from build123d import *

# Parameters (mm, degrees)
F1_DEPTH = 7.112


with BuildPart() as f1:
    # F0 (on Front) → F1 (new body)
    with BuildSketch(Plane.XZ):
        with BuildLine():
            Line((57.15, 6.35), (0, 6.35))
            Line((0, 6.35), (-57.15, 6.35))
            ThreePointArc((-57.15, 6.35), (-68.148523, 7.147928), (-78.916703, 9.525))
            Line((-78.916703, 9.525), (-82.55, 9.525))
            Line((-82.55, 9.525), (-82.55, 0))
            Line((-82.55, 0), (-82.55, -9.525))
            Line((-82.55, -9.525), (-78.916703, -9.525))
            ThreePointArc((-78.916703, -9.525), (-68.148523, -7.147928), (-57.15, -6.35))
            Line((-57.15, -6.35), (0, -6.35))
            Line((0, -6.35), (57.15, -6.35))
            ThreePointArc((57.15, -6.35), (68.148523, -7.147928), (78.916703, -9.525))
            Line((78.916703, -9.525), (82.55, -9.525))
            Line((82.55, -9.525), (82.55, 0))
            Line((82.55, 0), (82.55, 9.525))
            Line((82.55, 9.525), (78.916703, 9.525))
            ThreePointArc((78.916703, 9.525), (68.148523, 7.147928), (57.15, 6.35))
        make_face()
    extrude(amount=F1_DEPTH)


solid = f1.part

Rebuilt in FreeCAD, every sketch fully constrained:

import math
import FreeCAD as App
import Part
import Sketcher
Q = App.Units.Quantity

doc = App.newDocument("Part")
body = doc.addObject("PartDesign::Body", "Body")

sketch1 = body.newObject("Sketcher::SketchObject", "Sketch")
sketch1.AttachmentSupport = (doc.getObject("XZ_Plane"), [""])
sketch1.MapMode = "FlatFace"
sketch1.addGeometry([
    Part.LineSegment(App.Vector(57.15, 6.35, 0), App.Vector(-57.15, 6.35, 0)),
    Part.ArcOfCircle(Part.Circle(App.Vector(-57.149998, 82.550014, 0), App.Vector(0, 0, 1), 76.200014), math.radians(-106.597841), math.radians(-90.000002)),
    Part.LineSegment(App.Vector(-78.916703, 9.525, 0), App.Vector(-82.55, 9.525, 0)),
    Part.LineSegment(App.Vector(-82.55, 9.525, 0), App.Vector(-82.55, -9.525, 0)),
    Part.LineSegment(App.Vector(-82.55, -9.525, 0), App.Vector(-78.916703, -9.525, 0)),
    Part.ArcOfCircle(Part.Circle(App.Vector(-57.149998, -82.550014, 0), App.Vector(0, 0, 1), 76.200014), math.radians(90.000002), math.radians(106.597841)),
    Part.LineSegment(App.Vector(-57.15, -6.35, 0), App.Vector(57.15, -6.35, 0)),
    Part.ArcOfCircle(Part.Circle(App.Vector(57.149998, -82.550014, 0), App.Vector(0, 0, 1), 76.200014), math.radians(73.402159), math.radians(89.999998)),
    Part.LineSegment(App.Vector(78.916703, -9.525, 0), App.Vector(82.55, -9.525, 0)),
    Part.LineSegment(App.Vector(82.55, -9.525, 0), App.Vector(82.55, 9.525, 0)),
    Part.LineSegment(App.Vector(82.55, 9.525, 0), App.Vector(78.916703, 9.525, 0)),
    Part.ArcOfCircle(Part.Circle(App.Vector(57.149998, 82.550014, 0), App.Vector(0, 0, 1), 76.200014), math.radians(-89.999998), math.radians(-73.402159)),
], False)
sketch1.addConstraint([
    Sketcher.Constraint("Tangent", 0, 2, 1, 2),
    Sketcher.Constraint("Coincident", 1, 1, 2, 1),
    Sketcher.Constraint("Coincident", 2, 2, 3, 1),
    Sketcher.Constraint("Coincident", 3, 2, 4, 1),
    Sketcher.Constraint("Coincident", 4, 2, 5, 2),
    Sketcher.Constraint("Tangent", 5, 1, 6, 1),
    Sketcher.Constraint("Tangent", 6, 2, 7, 2),
    Sketcher.Constraint("Coincident", 7, 1, 8, 1),
    Sketcher.Constraint("Coincident", 8, 2, 9, 1),
    Sketcher.Constraint("Coincident", 9, 2, 10, 1),
    Sketcher.Constraint("Coincident", 10, 2, 11, 2),
    Sketcher.Constraint("Tangent", 11, 1, 0, 1),
    Sketcher.Constraint("Horizontal", 0),
    Sketcher.Constraint("Horizontal", 2),
    Sketcher.Constraint("Vertical", 3),
    Sketcher.Constraint("Horizontal", 4),
    Sketcher.Constraint("Horizontal", 6),
    Sketcher.Constraint("Horizontal", 8),
    Sketcher.Constraint("Vertical", 9),
    Sketcher.Constraint("Horizontal", 10),
    Sketcher.Constraint("Equal", 1, 5),
    Sketcher.Constraint("Equal", 5, 7),
    Sketcher.Constraint("Equal", 7, 11),
    Sketcher.Constraint("Symmetric", 1, 3, 7, 3, -1, 1),
    Sketcher.Constraint("Symmetric", 2, 2, 8, 2, -1, 1),
    Sketcher.Constraint("Symmetric", 4, 2, 10, 2, -1, 1),
    Sketcher.Constraint("Symmetric", 4, 2, 7, 1, -2),
    Sketcher.Constraint("DistanceX", 0, 2, 0, 1, Q("4.5 in")),
    Sketcher.Constraint("DistanceX", 2, 2, 0, 2, Q("1 in")),
    Sketcher.Constraint("DistanceY", 3, 2, 3, 1, Q("0.75 in")),
    Sketcher.Constraint("DistanceY", 5, 1, 0, 2, Q("0.5 in")),
    Sketcher.Constraint("Radius", 1, 76.200014),
])
pad1 = body.newObject("PartDesign::Pad", "Pad")
pad1.Profile = sketch1
pad1.Length = Q("0.28 in")

doc.recompute()
